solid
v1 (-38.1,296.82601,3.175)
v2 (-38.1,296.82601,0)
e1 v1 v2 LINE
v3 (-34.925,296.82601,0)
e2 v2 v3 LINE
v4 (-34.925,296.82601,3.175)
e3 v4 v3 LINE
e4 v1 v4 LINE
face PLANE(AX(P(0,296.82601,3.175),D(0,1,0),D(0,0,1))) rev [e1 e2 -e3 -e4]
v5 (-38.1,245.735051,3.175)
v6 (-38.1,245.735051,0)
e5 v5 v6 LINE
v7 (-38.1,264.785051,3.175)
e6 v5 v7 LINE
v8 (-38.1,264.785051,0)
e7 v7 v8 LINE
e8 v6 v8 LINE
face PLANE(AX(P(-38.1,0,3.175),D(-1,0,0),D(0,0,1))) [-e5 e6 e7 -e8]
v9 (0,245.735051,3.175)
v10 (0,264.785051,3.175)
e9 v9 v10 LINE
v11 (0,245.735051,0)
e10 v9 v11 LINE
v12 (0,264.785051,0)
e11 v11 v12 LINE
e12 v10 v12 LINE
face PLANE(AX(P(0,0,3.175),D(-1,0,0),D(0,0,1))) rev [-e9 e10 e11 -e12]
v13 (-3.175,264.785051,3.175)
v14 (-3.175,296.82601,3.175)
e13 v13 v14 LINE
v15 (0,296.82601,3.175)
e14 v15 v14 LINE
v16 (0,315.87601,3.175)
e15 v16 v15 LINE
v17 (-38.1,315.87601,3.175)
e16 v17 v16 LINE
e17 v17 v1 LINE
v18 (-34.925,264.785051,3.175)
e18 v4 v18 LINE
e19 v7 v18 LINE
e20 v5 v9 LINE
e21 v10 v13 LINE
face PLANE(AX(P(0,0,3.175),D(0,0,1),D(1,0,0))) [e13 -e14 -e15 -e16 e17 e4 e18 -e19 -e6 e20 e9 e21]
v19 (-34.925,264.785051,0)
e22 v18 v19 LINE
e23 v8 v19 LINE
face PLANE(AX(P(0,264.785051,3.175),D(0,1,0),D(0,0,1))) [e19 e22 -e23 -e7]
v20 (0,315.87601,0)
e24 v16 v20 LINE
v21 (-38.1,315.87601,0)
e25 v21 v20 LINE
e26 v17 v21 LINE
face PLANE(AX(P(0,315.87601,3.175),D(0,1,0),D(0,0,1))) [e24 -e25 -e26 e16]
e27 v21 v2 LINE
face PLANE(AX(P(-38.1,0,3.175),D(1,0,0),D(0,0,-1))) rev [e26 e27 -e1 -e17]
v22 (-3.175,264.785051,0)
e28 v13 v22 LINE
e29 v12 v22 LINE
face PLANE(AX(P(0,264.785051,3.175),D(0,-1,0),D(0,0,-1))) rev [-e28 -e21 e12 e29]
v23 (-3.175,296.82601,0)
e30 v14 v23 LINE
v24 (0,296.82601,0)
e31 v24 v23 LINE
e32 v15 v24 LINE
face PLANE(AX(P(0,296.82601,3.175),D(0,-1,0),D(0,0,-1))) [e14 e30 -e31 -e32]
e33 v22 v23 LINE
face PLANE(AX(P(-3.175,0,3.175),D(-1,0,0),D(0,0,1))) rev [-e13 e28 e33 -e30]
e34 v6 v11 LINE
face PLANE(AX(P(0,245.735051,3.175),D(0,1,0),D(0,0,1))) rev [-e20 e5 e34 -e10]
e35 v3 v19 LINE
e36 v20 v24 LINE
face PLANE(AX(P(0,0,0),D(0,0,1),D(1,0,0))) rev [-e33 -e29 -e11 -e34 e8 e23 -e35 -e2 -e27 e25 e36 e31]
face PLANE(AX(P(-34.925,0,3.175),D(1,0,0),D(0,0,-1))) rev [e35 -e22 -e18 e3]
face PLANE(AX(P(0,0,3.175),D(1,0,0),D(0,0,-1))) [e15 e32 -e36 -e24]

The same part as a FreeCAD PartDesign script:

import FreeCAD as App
import Part
import Sketcher
from FreeCAD import Vector
Q = App.Units.Quantity


def add_polygon(sketch, points):
    """Adds a closed chain of lines whose ends are joined by coincident constraints."""
    first, n = sketch.GeometryCount, len(points)
    for a, b in zip(points, points[1:] + points[:1]):
        sketch.addGeometry(Part.LineSegment(App.Vector(*a, 0), App.Vector(*b, 0)), False)
    for i in range(n):
        sketch.addConstraint(Sketcher.Constraint("Coincident", first + i, 2, first + (i + 1) % n, 1))

doc = App.newDocument("Part")
body = doc.addObject("PartDesign::Body", "Body")

# Sketch on XY plane
sketch1 = body.newObject("Sketcher::SketchObject", "Sketch")
sketch1.AttachmentSupport = (doc.getObject("XY_Plane"), [""])
sketch1.MapMode = "FlatFace"
add_polygon(sketch1, [(-38.1, 315.9), (-38.1, 296.8), (-34.9, 296.8), (-34.9, 264.8), (-38.1, 264.8), (-38.1, 245.7), (0, 245.7), (0, 264.8), (-3.2, 264.8), (-3.2, 296.8), (0, 296.8), (0, 315.9)])  # lines 0-11
sketch1.addConstraint([
    Sketcher.Constraint("Vertical", 0),
    Sketcher.Constraint("Horizontal", 1),
    Sketcher.Constraint("Vertical", 2),
    Sketcher.Constraint("Horizontal", 3),
    Sketcher.Constraint("Vertical", 4),
    Sketcher.Constraint("Horizontal", 5),
    Sketcher.Constraint("Vertical", 6),
    Sketcher.Constraint("Horizontal", 7),
    Sketcher.Constraint("Vertical", 8),
    Sketcher.Constraint("Horizontal", 9),
    Sketcher.Constraint("Vertical", 10),
    Sketcher.Constraint("Horizontal", 11),
    Sketcher.Constraint("PointOnObject", 5, 2, -2),
    Sketcher.Constraint("PointOnObject", 9, 2, -2),
    Sketcher.Constraint("Horizontal", 3, 2, 6, 2),
    Sketcher.Constraint("Horizontal", 1, 2, 8, 2),
    Sketcher.Constraint("Vertical", 0, 2, 3, 2),
    Sketcher.Constraint("Equal", 3, 7),
    Sketcher.Constraint("Equal", 0, 4),
    Sketcher.Constraint("DistanceX", 5, 1, 5, 2, Q("1.5 in")),
    Sketcher.Constraint("DistanceY", 0, 2, 0, 1, Q("0.75 in")),
    Sketcher.Constraint("DistanceX", 1, 1, 1, 2, Q("0.125 in")),
    Sketcher.Constraint("DistanceY", 2, 2, 2, 1, Q("32.040959 mm")),
    Sketcher.Constraint("DistanceY", -1, 1, 0, 2, Q("296.82601 mm")),
])
pad1 = body.newObject("PartDesign::Pad", "Pad")
pad1.Profile = sketch1
pad1.Length = Q("0.125 in")

doc.recompute()
